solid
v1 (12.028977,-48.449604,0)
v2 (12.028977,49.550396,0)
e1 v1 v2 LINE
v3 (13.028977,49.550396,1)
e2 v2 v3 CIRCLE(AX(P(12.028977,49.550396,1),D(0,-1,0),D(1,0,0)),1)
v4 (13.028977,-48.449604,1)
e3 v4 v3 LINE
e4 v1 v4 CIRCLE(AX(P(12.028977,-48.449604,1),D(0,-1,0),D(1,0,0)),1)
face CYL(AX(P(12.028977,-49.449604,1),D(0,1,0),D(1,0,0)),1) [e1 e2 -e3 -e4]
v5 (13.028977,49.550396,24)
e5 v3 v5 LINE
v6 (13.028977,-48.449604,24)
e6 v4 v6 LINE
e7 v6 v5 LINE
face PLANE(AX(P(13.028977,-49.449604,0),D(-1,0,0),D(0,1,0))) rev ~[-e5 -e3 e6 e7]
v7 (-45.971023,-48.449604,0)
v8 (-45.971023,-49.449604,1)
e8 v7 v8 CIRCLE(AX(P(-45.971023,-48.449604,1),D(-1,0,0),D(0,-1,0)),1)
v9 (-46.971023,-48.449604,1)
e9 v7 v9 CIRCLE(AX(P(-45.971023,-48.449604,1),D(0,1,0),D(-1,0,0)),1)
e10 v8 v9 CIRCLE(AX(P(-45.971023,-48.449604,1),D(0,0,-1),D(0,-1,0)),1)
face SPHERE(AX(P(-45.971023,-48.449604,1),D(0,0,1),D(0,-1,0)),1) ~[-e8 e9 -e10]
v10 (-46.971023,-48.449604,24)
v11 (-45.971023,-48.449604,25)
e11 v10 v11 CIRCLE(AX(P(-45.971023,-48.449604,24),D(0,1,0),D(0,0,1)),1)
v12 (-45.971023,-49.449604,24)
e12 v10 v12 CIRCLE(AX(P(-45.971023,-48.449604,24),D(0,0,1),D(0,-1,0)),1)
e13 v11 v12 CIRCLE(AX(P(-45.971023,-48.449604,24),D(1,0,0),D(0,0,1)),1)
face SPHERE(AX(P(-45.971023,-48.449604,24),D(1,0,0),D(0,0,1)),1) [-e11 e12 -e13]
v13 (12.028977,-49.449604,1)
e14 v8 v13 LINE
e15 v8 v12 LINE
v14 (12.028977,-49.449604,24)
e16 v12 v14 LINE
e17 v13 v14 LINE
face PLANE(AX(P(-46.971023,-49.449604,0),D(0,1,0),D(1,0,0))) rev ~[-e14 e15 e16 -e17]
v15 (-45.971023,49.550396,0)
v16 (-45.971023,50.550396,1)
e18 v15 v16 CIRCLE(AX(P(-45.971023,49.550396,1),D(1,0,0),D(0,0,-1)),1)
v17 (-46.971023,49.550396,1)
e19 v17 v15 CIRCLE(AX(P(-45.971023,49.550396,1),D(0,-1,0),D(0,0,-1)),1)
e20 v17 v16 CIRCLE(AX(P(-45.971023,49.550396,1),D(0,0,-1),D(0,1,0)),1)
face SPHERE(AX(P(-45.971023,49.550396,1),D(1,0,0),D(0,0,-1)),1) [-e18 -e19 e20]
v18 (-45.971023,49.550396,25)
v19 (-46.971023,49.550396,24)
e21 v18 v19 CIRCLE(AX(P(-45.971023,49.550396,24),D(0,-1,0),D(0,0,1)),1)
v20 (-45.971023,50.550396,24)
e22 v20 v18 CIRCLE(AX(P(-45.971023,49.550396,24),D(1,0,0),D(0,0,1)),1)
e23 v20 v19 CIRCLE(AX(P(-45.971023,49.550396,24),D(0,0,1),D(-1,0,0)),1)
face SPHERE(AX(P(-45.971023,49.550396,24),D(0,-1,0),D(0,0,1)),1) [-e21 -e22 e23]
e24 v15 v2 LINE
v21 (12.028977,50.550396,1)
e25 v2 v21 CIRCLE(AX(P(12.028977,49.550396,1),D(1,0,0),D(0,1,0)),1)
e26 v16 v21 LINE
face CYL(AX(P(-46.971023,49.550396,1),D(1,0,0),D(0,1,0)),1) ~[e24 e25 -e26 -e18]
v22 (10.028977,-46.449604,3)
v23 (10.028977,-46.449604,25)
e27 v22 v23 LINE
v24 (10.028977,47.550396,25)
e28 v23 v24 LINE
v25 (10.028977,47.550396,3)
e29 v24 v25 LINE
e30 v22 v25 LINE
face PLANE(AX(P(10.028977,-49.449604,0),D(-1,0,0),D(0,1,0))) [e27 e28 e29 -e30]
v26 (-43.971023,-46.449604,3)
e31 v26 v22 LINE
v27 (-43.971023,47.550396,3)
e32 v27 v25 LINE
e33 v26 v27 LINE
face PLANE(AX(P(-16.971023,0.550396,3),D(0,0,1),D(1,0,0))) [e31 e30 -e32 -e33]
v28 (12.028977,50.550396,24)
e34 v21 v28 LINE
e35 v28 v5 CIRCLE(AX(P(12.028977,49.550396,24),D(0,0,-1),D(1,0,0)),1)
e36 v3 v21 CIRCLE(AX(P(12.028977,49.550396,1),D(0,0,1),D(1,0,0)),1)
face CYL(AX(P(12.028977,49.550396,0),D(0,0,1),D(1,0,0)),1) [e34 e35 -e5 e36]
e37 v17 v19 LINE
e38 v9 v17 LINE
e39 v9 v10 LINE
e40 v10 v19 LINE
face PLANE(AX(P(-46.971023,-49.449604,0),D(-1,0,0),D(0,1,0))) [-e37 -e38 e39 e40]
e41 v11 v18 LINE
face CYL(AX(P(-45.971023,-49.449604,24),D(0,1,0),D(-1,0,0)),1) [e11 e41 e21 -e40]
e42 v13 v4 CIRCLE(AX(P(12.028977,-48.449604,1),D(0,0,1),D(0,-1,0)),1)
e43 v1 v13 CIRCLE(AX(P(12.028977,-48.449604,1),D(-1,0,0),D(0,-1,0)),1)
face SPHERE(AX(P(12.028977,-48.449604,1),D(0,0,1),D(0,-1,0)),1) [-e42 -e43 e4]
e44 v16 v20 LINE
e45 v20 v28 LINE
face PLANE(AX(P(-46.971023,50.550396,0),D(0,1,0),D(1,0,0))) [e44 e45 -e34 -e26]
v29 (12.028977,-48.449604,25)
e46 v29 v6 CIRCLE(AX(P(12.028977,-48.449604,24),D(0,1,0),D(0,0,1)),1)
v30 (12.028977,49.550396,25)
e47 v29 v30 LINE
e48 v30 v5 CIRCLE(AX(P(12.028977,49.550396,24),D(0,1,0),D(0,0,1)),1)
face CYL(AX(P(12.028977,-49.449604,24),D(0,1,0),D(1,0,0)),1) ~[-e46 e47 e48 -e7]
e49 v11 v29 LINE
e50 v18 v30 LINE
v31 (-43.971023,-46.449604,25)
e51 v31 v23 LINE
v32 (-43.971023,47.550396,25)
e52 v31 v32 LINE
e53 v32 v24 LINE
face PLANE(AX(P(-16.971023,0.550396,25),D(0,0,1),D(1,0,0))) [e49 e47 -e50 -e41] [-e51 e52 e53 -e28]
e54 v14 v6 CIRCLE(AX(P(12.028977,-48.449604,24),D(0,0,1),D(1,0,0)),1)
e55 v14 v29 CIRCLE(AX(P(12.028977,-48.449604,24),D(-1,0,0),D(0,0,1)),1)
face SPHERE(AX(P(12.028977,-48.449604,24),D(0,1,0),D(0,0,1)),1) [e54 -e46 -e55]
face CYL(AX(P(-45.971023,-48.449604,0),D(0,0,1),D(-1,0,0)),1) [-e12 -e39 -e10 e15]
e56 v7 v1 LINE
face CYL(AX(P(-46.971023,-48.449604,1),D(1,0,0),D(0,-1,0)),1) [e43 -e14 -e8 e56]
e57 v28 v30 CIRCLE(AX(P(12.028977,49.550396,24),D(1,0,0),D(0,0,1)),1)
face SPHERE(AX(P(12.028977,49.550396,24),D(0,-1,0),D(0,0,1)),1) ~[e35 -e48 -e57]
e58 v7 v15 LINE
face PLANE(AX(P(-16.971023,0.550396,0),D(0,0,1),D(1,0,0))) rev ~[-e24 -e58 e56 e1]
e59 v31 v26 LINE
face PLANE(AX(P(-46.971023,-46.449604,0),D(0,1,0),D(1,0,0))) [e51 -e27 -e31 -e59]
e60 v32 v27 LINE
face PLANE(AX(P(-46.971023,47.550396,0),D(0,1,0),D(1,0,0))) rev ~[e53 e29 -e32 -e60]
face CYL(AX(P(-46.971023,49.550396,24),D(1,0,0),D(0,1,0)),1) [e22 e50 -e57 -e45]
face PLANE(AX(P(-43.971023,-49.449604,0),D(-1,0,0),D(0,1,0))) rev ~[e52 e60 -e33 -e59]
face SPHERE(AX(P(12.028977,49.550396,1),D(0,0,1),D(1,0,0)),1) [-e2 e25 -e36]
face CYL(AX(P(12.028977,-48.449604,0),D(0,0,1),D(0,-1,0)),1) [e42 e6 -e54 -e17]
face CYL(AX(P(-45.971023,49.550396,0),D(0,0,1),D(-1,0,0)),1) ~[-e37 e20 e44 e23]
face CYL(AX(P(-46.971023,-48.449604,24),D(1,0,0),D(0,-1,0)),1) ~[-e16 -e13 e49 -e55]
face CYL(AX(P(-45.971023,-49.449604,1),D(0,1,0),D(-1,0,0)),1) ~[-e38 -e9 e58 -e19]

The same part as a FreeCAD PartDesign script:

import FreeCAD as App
import Part
import Sketcher
Q = App.Units.Quantity


def edges_at(feature, points):
    """Names of the edges that pass closest to the given points."""
    edges = feature.Shape.Edges
    near = lambda p: min(range(len(edges)), key=lambda i: edges[i].distToShape(Part.Vertex(*p))[0])
    return sorted({f"Edge{near(p) + 1}" for p in points})


def faces_at(feature, points):
    """Names of the faces that lie closest to the given points."""
    faces = feature.Shape.Faces
    near = lambda p: min(range(len(faces)), key=lambda i: faces[i].distToShape(Part.Vertex(*p))[0])
    return sorted({f"Face{near(p) + 1}" for p in points})


def add_polygon(sketch, points):
    """Adds a closed chain of lines whose ends are joined by coincident constraints."""
    first, n = sketch.GeometryCount, len(points)
    for a, b in zip(points, points[1:] + points[:1]):
        sketch.addGeometry(Part.LineSegment(App.Vector(*a, 0), App.Vector(*b, 0)), False)
    for i in range(n):
        sketch.addConstraint(Sketcher.Constraint("Coincident", first + i, 2, first + (i + 1) % n, 1))

doc = App.newDocument("Part")
body = doc.addObject("PartDesign::Body", "Body")

# Sketch on XY plane
sketch1 = body.newObject("Sketcher::SketchObject", "Sketch")
sketch1.AttachmentSupport = (doc.getObject("XY_Plane"), [""])
sketch1.MapMode = "FlatFace"
add_polygon(sketch1, [(-47, 51), (-47, -49), (13, -49), (13, 51)])  # lines 0-3
sketch1.addConstraint([
    Sketcher.Constraint("Vertical", 0),
    Sketcher.Constraint("Horizontal", 1),
    Sketcher.Constraint("Vertical", 2),
    Sketcher.Constraint("Horizontal", 3),
    Sketcher.Constraint("DistanceX", 1, 1, 1, 2, Q("60 mm")),
    Sketcher.Constraint("DistanceY", 0, 2, 0, 1, Q("100 mm")),
    Sketcher.Constraint("DistanceX", 0, 2, -1, 1, Q("46.971023 mm")),
    Sketcher.Constraint("DistanceY", 0, 2, -1, 1, Q("49.449604 mm")),
])
pad1 = body.newObject("PartDesign::Pad", "Pad")
pad1.Profile = sketch1
pad1.Length = 25
doc.recompute()

thickness = body.newObject("PartDesign::Thickness", "Thickness")
thickness.Base = (pad1, faces_at(pad1, [(-16.971, 0.55, 25)]))
thickness.Value = 3
thickness.Reversed = True
thickness.Join = "Arc"
doc.recompute()

fillet = body.newObject("PartDesign::Fillet", "Fillet")
fillet.Base = (thickness, edges_at(thickness, [
    (13.029, 0.55, 25),
    (-16.971, -49.45, 25),
    (-46.971, 0.55, 25),
    (-16.971, 50.55, 25),
    (13.029, 50.55, 12.5),
    (13.029, -49.45, 12.5),
    (-46.971, -49.45, 12.5),
    (-16.971, -49.45, 0),
    (13.029, 0.55, 0),
    (-16.971, 50.55, 0),
    (-46.971, 0.55, 0),
    (-46.971, 50.55, 12.5),
]))
fillet.Radius = 1

doc.recompute()
